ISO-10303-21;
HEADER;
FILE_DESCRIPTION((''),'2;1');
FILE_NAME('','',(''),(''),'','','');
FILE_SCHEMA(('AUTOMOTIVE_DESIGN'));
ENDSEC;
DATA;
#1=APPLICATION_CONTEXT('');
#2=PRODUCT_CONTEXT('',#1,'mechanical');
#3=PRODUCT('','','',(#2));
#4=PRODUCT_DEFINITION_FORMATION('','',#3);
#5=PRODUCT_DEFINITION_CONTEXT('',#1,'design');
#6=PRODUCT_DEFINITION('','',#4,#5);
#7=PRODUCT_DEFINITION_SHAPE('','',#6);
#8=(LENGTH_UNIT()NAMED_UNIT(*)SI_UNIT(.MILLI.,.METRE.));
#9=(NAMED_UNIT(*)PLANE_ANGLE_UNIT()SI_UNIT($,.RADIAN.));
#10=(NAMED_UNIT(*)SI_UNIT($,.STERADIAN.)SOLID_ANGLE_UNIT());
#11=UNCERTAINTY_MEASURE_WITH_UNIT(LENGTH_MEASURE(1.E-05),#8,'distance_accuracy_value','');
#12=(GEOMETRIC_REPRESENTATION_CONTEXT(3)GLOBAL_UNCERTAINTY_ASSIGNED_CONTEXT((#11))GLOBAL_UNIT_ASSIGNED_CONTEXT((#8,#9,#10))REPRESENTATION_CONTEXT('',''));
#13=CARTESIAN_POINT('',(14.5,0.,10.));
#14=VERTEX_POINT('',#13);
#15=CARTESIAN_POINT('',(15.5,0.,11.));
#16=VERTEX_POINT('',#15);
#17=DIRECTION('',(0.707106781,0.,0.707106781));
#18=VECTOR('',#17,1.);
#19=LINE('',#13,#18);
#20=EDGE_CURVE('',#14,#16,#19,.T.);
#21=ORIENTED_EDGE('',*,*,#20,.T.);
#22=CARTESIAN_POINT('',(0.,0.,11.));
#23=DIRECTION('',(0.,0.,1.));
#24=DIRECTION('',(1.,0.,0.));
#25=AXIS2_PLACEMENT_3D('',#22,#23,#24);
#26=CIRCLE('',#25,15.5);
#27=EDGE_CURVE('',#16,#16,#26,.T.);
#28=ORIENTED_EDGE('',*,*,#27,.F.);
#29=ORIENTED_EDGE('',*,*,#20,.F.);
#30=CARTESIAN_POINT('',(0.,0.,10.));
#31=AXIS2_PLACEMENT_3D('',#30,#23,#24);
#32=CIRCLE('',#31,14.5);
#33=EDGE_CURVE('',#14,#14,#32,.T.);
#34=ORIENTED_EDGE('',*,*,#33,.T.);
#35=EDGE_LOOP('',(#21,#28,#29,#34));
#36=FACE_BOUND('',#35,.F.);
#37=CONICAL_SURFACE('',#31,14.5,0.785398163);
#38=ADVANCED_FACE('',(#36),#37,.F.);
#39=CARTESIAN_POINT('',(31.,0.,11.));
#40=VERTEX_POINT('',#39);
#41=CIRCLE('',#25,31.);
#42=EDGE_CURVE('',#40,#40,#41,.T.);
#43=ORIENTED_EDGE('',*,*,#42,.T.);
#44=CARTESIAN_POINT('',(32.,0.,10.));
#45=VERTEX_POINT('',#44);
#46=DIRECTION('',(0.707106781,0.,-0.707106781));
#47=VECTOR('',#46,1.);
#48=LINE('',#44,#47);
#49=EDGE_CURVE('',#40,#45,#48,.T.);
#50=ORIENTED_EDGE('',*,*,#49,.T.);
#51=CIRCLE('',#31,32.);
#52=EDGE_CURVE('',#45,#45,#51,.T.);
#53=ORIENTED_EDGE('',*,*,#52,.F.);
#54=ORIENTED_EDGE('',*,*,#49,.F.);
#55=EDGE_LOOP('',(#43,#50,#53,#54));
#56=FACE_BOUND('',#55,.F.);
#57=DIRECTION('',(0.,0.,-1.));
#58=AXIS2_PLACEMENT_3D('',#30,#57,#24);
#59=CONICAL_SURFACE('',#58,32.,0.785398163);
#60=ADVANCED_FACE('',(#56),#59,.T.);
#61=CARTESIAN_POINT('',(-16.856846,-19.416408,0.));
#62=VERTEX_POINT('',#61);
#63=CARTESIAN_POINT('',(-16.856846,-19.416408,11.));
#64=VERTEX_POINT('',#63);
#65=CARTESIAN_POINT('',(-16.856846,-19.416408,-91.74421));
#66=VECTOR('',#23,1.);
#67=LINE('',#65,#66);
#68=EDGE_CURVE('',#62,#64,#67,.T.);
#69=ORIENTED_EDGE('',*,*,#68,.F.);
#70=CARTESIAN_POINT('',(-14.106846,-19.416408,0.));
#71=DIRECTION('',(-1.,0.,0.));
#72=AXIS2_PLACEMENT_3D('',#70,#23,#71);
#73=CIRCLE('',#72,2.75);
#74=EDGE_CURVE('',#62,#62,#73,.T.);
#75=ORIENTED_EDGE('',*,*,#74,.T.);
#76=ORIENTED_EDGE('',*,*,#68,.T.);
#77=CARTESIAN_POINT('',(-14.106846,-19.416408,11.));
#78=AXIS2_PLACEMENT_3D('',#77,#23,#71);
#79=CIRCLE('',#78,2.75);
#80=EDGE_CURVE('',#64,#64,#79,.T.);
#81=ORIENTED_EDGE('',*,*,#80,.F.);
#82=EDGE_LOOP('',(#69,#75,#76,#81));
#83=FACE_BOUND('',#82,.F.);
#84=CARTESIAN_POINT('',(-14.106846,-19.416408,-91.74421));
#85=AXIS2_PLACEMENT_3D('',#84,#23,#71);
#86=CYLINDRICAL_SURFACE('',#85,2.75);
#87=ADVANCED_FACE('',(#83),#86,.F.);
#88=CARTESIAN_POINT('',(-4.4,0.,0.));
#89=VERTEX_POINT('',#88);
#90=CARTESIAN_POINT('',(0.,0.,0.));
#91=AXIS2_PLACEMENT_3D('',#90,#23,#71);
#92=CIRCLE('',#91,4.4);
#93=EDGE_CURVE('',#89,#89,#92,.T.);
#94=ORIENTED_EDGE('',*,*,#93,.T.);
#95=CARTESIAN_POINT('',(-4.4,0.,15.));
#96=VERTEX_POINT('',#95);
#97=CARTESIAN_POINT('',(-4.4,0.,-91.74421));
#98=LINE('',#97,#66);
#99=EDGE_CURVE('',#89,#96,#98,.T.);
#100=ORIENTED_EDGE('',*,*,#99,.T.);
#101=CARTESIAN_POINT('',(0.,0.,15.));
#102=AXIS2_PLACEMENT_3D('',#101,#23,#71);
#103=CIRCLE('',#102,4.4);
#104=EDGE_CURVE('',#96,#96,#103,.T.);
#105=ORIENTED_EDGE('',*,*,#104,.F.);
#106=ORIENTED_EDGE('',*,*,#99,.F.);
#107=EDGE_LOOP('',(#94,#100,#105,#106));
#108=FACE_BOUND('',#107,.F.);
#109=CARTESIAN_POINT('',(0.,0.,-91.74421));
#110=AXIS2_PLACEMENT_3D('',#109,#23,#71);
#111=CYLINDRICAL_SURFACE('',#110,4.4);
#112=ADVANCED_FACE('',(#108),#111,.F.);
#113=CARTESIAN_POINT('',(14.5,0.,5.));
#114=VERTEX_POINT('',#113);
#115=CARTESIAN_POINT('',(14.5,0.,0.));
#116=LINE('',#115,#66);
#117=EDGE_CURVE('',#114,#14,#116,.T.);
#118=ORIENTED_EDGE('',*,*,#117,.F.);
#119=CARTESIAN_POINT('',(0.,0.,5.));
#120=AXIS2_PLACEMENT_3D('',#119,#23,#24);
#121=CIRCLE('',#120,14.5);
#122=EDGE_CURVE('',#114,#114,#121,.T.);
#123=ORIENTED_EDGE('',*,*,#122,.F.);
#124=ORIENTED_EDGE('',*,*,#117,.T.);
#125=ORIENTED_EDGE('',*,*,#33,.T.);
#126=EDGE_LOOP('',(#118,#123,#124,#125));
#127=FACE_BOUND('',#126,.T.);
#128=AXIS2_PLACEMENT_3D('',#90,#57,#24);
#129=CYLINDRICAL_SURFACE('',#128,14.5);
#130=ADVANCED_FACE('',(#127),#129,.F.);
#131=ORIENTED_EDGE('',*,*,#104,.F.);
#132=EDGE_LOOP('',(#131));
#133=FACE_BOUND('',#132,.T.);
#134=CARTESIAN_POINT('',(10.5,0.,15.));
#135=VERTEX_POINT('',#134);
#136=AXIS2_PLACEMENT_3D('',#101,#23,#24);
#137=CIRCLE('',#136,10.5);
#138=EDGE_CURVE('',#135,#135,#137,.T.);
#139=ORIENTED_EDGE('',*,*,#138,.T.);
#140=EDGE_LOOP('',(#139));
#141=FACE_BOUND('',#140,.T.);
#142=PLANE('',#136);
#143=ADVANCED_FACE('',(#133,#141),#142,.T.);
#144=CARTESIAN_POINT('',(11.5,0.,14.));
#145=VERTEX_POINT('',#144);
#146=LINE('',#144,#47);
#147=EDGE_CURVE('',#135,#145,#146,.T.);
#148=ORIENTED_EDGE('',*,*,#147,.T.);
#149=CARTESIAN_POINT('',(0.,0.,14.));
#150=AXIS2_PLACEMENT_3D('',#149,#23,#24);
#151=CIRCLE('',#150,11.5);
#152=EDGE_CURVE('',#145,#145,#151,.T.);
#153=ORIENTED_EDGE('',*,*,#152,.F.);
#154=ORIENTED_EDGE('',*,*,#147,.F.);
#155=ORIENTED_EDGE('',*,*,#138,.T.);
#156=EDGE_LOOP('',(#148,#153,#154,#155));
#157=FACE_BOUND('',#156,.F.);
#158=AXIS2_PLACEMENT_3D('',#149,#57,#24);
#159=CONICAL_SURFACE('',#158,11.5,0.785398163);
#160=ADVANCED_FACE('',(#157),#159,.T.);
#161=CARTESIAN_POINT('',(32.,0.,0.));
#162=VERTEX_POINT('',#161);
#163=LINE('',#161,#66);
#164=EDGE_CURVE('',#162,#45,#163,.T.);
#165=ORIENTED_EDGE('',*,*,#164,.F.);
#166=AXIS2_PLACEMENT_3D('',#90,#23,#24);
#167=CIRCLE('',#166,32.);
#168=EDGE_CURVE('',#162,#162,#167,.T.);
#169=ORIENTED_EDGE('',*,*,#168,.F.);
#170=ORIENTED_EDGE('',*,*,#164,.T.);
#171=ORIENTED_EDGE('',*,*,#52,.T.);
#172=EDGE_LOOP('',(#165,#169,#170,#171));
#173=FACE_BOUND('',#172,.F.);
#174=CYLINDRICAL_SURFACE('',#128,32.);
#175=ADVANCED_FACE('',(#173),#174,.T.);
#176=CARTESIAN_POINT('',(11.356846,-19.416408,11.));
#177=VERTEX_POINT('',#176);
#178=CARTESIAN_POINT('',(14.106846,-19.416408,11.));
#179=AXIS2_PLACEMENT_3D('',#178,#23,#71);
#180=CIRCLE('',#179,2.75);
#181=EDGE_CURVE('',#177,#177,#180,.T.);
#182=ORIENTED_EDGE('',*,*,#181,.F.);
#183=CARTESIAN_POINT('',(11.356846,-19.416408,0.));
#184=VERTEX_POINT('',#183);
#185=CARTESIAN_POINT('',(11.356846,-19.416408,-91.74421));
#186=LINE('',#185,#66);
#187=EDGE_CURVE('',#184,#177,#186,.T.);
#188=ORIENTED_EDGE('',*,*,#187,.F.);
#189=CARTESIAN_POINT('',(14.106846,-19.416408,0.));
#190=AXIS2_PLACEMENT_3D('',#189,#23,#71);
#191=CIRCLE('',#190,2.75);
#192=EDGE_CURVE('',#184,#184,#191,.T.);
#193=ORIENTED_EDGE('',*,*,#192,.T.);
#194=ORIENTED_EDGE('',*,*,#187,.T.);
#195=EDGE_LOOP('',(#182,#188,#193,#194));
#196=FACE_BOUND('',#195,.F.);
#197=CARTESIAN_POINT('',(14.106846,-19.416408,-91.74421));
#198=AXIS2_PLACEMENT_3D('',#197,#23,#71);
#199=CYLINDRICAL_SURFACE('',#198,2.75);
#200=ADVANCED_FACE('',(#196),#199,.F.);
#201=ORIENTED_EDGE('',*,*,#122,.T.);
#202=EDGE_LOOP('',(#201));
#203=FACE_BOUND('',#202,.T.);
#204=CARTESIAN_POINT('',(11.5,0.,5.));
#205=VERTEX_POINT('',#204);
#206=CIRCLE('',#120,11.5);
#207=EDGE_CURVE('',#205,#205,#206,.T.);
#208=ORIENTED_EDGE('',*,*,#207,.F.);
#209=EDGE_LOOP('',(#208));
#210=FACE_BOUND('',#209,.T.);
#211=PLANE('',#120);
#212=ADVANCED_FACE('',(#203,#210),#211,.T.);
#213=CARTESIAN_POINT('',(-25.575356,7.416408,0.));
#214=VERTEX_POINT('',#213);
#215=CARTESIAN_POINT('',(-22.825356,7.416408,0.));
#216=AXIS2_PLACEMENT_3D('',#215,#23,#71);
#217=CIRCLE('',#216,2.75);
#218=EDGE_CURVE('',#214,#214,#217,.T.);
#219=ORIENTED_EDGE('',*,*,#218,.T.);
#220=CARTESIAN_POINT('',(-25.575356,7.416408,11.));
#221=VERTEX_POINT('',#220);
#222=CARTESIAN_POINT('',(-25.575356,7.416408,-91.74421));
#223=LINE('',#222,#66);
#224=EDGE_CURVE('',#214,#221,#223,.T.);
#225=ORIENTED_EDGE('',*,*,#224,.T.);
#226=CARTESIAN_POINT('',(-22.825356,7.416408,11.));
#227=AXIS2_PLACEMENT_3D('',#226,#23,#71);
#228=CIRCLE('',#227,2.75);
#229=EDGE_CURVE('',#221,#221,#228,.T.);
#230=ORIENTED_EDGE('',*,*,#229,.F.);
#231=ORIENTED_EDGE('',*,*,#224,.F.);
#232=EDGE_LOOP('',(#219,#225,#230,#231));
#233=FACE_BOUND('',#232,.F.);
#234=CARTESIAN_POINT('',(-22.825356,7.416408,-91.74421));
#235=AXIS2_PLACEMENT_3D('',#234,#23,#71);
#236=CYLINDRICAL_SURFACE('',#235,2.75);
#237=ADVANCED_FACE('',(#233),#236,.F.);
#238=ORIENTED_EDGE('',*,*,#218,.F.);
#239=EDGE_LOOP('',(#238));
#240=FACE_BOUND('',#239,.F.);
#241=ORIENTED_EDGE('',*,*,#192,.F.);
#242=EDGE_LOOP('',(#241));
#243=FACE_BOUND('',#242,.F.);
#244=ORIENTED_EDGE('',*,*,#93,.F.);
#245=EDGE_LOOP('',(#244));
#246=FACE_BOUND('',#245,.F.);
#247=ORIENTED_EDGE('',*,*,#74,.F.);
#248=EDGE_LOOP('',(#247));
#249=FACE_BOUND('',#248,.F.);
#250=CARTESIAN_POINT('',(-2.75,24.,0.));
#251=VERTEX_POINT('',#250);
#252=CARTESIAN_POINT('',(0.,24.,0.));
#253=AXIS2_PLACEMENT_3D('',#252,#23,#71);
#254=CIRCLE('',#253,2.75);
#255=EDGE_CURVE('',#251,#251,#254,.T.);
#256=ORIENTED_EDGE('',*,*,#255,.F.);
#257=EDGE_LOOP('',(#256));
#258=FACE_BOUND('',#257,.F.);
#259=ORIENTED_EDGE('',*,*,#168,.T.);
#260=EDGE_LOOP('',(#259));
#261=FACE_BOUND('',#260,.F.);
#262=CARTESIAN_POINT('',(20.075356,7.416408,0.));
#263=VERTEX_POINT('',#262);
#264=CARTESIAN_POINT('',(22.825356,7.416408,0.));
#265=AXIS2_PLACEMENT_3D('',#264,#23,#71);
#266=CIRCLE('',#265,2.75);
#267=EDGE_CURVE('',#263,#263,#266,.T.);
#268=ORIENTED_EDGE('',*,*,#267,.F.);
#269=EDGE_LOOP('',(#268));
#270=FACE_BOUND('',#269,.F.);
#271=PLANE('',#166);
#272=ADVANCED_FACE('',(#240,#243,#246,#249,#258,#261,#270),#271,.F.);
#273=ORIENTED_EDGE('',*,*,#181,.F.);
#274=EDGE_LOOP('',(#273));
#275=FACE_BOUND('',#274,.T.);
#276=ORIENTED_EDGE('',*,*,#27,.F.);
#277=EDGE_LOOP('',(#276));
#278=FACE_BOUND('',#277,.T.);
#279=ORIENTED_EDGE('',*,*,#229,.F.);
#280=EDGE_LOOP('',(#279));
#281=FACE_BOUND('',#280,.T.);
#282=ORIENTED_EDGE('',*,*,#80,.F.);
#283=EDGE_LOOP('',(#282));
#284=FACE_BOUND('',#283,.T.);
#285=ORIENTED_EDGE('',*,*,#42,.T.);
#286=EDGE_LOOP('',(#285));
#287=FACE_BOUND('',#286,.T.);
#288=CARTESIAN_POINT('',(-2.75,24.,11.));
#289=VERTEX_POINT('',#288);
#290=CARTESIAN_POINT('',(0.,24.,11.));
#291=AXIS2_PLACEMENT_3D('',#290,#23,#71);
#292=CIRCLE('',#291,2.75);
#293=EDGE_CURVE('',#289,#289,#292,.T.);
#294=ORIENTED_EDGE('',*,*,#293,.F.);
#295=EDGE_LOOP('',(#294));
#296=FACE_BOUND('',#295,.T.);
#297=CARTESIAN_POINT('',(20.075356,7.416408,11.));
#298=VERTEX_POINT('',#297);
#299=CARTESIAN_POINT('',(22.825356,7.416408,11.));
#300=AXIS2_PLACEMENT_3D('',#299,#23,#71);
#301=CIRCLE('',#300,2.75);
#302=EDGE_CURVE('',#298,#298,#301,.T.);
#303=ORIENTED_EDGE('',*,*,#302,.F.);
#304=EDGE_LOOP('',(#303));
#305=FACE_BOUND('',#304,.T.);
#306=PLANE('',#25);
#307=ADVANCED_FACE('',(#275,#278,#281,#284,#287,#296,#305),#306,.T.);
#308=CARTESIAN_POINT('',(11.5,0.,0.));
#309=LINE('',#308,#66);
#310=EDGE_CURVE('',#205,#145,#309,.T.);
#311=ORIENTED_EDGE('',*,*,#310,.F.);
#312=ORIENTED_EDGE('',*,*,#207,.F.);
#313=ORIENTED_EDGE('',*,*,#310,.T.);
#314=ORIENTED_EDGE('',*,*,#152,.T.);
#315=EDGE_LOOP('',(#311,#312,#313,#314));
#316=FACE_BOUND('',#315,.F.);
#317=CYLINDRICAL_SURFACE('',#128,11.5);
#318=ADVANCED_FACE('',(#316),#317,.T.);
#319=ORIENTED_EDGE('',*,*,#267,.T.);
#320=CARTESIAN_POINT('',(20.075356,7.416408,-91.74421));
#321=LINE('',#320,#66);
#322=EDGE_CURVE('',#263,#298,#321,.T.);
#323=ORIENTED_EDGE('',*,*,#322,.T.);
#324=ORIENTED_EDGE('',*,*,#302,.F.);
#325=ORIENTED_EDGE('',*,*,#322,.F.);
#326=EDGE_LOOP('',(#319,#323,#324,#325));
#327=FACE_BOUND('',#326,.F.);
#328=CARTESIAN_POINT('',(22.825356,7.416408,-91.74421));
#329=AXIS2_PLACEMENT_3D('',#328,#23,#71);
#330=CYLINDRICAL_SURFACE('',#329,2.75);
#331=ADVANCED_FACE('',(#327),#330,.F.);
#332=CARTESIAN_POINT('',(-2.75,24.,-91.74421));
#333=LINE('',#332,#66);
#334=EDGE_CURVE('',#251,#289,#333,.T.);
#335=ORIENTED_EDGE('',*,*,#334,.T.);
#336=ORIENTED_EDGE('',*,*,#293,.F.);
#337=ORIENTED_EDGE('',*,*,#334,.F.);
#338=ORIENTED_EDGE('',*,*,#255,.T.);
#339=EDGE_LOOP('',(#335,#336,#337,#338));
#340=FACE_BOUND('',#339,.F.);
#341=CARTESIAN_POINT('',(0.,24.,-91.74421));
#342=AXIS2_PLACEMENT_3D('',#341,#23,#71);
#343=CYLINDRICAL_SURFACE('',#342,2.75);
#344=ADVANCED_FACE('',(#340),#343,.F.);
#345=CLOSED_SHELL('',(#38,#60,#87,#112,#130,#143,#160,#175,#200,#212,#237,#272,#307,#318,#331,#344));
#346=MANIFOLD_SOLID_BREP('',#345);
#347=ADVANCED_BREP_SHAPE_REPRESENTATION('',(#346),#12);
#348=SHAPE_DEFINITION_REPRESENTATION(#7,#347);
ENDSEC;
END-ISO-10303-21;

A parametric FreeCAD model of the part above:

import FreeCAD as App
import Part
import Sketcher
from FreeCAD import Vector


def edges_at(feature, points):
    """Names of the edges that pass closest to the given points."""
    edges = feature.Shape.Edges
    near = lambda p: min(range(len(edges)), key=lambda i: edges[i].distToShape(Part.Vertex(*p))[0])
    return sorted({f"Edge{near(p) + 1}" for p in points})

doc = App.newDocument("Part")
body = doc.addObject("PartDesign::Body", "Body")

sketch1 = body.newObject("Sketcher::SketchObject", "Sketch")
sketch1.AttachmentSupport = (doc.getObject("XY_Plane"), [""])
sketch1.MapMode = "FlatFace"
sketch1.addGeometry(Part.Circle(Vector(0, 0, 0), Vector(0, 0, 1), 12), False)
sketch1.addConstraint(Sketcher.Constraint("Coincident", 0, 3, -1, 1))
sketch1.addConstraint(Sketcher.Constraint("Diameter", 0, 23.0))
pad1 = body.newObject("PartDesign::Pad", "Pad")
pad1.Profile = sketch1
pad1.Length = 15

sketch2 = body.newObject("Sketcher::SketchObject", "Sketch001")
sketch2.AttachmentSupport = (doc.getObject("XY_Plane"), [""])
sketch2.MapMode = "FlatFace"
sketch2.addGeometry(Part.Circle(Vector(0, 0, 0), Vector(0, 0, 1), 14), False)
sketch2.addGeometry(Part.Circle(Vector(0, 0, 0), Vector(0, 0, 1), 12), False)
sketch2.addConstraint(Sketcher.Constraint("Coincident", 0, 3, -1, 1))
sketch2.addConstraint(Sketcher.Constraint("Coincident", 1, 3, -1, 1))
sketch2.addConstraint(Sketcher.Constraint("Diameter", 0, 29.0))
sketch2.addConstraint(Sketcher.Constraint("Diameter", 1, 23.0))
pad2 = body.newObject("PartDesign::Pad", "Pad001")
pad2.Profile = sketch2
pad2.Length = 5

sketch3 = body.newObject("Sketcher::SketchObject", "Sketch002")
sketch3.AttachmentSupport = (doc.getObject("XY_Plane"), [""])
sketch3.MapMode = "FlatFace"
sketch3.addGeometry(Part.Circle(Vector(0, 0, 0), Vector(0, 0, 1), 32), False)
sketch3.addGeometry(Part.Circle(Vector(0, 0, 0), Vector(0, 0, 1), 14), False)
sketch3.addConstraint(Sketcher.Constraint("Coincident", 0, 3, -1, 1))
sketch3.addConstraint(Sketcher.Constraint("Coincident", 1, 3, -1, 1))
sketch3.addConstraint(Sketcher.Constraint("Diameter", 0, 64.0))
sketch3.addConstraint(Sketcher.Constraint("Diameter", 1, 29.0))
pad3 = body.newObject("PartDesign::Pad", "Pad002")
pad3.Profile = sketch3
pad3.Length = 11

sketch4 = body.newObject("Sketcher::SketchObject", "Sketch003")
sketch4.AttachmentSupport = (doc.getObject("XY_Plane"), [""])
sketch4.MapMode = "FlatFace"
sketch4.addGeometry(Part.Circle(Vector(-22.8, 7.4, 0), Vector(0, 0, 1), 2.8), False)
sketch4.addGeometry(Part.Circle(Vector(0, 24, 0), Vector(0, 0, 1), 2.8), False)
sketch4.addGeometry(Part.Circle(Vector(22.8, 7.4, 0), Vector(0, 0, 1), 2.8), False)
sketch4.addGeometry(Part.Circle(Vector(14.1, -19.4, 0), Vector(0, 0, 1), 2.8), False)
sketch4.addGeometry(Part.Circle(Vector(-14.1, -19.4, 0), Vector(0, 0, 1), 2.8), False)
sketch4.addConstraint(Sketcher.Constraint("Equal", 0, 1))
sketch4.addConstraint(Sketcher.Constraint("Equal", 1, 2))
sketch4.addConstraint(Sketcher.Constraint("Equal", 2, 3))
sketch4.addConstraint(Sketcher.Constraint("Equal", 3, 4))
sketch4.addConstraint(Sketcher.Constraint("Symmetric", 0, 3, 2, 3, -2))
sketch4.addConstraint(Sketcher.Constraint("Symmetric", 3, 3, 4, 3, -2))
sketch4.addConstraint(Sketcher.Constraint("PointOnObject", 1, 3, -2))
sketch4.addConstraint(Sketcher.Constraint("Diameter", 0, 5.5))
sketch4.addConstraint(Sketcher.Constraint("DistanceY", -1, 1, 1, 3, 24.0))
sketch4.addConstraint(Sketcher.Constraint("DistanceX", 3, 3, 2, 3, 8.71851))
sketch4.addConstraint(Sketcher.Constraint("DistanceX", 0, 3, -1, 1, 22.825356))
sketch4.addConstraint(Sketcher.Constraint("DistanceY", -1, 1, 0, 3, 7.416408))
sketch4.addConstraint(Sketcher.Constraint("DistanceY", 3, 3, -1, 1, 19.416408))
doc.recompute()
hole = body.newObject("PartDesign::Hole", "Hole")
hole.Profile = sketch4
hole.ThreadType = "None"
hole.Diameter = 5.5
hole.DepthType = "ThroughAll"
hole.Reversed = True

sketch5 = body.newObject("Sketcher::SketchObject", "Sketch004")
sketch5.AttachmentSupport = (doc.getObject("XY_Plane"), [""])
sketch5.MapMode = "FlatFace"
sketch5.addGeometry(Part.Circle(Vector(0, 0, 0), Vector(0, 0, 1), 4.4), False)
sketch5.addConstraint(Sketcher.Constraint("Coincident", 0, 3, -1, 1))
sketch5.addConstraint(Sketcher.Constraint("Diameter", 0, 8.8))
doc.recompute()
hole2 = body.newObject("PartDesign::Hole", "Hole001")
hole2.Profile = sketch5
hole2.ThreadType = "None"
hole2.Diameter = 8.8
hole2.DepthType = "ThroughAll"
hole2.Reversed = True
doc.recompute()

chamfer = body.newObject("PartDesign::Chamfer", "Chamfer")
chamfer.Base = (hole2, edges_at(hole2, [(-11.5, 0, 15)]))
chamfer.Size = 1
doc.recompute()

chamfer2 = body.newObject("PartDesign::Chamfer", "Chamfer001")
chamfer2.Base = (chamfer, edges_at(chamfer, [(-14.5, 0, 11)]))
chamfer2.Size = 1
doc.recompute()

chamfer3 = body.newObject("PartDesign::Chamfer", "Chamfer002")
chamfer3.Base = (chamfer2, edges_at(chamfer2, [(-32, 0, 11)]))
chamfer3.Size = 1

doc.recompute()
